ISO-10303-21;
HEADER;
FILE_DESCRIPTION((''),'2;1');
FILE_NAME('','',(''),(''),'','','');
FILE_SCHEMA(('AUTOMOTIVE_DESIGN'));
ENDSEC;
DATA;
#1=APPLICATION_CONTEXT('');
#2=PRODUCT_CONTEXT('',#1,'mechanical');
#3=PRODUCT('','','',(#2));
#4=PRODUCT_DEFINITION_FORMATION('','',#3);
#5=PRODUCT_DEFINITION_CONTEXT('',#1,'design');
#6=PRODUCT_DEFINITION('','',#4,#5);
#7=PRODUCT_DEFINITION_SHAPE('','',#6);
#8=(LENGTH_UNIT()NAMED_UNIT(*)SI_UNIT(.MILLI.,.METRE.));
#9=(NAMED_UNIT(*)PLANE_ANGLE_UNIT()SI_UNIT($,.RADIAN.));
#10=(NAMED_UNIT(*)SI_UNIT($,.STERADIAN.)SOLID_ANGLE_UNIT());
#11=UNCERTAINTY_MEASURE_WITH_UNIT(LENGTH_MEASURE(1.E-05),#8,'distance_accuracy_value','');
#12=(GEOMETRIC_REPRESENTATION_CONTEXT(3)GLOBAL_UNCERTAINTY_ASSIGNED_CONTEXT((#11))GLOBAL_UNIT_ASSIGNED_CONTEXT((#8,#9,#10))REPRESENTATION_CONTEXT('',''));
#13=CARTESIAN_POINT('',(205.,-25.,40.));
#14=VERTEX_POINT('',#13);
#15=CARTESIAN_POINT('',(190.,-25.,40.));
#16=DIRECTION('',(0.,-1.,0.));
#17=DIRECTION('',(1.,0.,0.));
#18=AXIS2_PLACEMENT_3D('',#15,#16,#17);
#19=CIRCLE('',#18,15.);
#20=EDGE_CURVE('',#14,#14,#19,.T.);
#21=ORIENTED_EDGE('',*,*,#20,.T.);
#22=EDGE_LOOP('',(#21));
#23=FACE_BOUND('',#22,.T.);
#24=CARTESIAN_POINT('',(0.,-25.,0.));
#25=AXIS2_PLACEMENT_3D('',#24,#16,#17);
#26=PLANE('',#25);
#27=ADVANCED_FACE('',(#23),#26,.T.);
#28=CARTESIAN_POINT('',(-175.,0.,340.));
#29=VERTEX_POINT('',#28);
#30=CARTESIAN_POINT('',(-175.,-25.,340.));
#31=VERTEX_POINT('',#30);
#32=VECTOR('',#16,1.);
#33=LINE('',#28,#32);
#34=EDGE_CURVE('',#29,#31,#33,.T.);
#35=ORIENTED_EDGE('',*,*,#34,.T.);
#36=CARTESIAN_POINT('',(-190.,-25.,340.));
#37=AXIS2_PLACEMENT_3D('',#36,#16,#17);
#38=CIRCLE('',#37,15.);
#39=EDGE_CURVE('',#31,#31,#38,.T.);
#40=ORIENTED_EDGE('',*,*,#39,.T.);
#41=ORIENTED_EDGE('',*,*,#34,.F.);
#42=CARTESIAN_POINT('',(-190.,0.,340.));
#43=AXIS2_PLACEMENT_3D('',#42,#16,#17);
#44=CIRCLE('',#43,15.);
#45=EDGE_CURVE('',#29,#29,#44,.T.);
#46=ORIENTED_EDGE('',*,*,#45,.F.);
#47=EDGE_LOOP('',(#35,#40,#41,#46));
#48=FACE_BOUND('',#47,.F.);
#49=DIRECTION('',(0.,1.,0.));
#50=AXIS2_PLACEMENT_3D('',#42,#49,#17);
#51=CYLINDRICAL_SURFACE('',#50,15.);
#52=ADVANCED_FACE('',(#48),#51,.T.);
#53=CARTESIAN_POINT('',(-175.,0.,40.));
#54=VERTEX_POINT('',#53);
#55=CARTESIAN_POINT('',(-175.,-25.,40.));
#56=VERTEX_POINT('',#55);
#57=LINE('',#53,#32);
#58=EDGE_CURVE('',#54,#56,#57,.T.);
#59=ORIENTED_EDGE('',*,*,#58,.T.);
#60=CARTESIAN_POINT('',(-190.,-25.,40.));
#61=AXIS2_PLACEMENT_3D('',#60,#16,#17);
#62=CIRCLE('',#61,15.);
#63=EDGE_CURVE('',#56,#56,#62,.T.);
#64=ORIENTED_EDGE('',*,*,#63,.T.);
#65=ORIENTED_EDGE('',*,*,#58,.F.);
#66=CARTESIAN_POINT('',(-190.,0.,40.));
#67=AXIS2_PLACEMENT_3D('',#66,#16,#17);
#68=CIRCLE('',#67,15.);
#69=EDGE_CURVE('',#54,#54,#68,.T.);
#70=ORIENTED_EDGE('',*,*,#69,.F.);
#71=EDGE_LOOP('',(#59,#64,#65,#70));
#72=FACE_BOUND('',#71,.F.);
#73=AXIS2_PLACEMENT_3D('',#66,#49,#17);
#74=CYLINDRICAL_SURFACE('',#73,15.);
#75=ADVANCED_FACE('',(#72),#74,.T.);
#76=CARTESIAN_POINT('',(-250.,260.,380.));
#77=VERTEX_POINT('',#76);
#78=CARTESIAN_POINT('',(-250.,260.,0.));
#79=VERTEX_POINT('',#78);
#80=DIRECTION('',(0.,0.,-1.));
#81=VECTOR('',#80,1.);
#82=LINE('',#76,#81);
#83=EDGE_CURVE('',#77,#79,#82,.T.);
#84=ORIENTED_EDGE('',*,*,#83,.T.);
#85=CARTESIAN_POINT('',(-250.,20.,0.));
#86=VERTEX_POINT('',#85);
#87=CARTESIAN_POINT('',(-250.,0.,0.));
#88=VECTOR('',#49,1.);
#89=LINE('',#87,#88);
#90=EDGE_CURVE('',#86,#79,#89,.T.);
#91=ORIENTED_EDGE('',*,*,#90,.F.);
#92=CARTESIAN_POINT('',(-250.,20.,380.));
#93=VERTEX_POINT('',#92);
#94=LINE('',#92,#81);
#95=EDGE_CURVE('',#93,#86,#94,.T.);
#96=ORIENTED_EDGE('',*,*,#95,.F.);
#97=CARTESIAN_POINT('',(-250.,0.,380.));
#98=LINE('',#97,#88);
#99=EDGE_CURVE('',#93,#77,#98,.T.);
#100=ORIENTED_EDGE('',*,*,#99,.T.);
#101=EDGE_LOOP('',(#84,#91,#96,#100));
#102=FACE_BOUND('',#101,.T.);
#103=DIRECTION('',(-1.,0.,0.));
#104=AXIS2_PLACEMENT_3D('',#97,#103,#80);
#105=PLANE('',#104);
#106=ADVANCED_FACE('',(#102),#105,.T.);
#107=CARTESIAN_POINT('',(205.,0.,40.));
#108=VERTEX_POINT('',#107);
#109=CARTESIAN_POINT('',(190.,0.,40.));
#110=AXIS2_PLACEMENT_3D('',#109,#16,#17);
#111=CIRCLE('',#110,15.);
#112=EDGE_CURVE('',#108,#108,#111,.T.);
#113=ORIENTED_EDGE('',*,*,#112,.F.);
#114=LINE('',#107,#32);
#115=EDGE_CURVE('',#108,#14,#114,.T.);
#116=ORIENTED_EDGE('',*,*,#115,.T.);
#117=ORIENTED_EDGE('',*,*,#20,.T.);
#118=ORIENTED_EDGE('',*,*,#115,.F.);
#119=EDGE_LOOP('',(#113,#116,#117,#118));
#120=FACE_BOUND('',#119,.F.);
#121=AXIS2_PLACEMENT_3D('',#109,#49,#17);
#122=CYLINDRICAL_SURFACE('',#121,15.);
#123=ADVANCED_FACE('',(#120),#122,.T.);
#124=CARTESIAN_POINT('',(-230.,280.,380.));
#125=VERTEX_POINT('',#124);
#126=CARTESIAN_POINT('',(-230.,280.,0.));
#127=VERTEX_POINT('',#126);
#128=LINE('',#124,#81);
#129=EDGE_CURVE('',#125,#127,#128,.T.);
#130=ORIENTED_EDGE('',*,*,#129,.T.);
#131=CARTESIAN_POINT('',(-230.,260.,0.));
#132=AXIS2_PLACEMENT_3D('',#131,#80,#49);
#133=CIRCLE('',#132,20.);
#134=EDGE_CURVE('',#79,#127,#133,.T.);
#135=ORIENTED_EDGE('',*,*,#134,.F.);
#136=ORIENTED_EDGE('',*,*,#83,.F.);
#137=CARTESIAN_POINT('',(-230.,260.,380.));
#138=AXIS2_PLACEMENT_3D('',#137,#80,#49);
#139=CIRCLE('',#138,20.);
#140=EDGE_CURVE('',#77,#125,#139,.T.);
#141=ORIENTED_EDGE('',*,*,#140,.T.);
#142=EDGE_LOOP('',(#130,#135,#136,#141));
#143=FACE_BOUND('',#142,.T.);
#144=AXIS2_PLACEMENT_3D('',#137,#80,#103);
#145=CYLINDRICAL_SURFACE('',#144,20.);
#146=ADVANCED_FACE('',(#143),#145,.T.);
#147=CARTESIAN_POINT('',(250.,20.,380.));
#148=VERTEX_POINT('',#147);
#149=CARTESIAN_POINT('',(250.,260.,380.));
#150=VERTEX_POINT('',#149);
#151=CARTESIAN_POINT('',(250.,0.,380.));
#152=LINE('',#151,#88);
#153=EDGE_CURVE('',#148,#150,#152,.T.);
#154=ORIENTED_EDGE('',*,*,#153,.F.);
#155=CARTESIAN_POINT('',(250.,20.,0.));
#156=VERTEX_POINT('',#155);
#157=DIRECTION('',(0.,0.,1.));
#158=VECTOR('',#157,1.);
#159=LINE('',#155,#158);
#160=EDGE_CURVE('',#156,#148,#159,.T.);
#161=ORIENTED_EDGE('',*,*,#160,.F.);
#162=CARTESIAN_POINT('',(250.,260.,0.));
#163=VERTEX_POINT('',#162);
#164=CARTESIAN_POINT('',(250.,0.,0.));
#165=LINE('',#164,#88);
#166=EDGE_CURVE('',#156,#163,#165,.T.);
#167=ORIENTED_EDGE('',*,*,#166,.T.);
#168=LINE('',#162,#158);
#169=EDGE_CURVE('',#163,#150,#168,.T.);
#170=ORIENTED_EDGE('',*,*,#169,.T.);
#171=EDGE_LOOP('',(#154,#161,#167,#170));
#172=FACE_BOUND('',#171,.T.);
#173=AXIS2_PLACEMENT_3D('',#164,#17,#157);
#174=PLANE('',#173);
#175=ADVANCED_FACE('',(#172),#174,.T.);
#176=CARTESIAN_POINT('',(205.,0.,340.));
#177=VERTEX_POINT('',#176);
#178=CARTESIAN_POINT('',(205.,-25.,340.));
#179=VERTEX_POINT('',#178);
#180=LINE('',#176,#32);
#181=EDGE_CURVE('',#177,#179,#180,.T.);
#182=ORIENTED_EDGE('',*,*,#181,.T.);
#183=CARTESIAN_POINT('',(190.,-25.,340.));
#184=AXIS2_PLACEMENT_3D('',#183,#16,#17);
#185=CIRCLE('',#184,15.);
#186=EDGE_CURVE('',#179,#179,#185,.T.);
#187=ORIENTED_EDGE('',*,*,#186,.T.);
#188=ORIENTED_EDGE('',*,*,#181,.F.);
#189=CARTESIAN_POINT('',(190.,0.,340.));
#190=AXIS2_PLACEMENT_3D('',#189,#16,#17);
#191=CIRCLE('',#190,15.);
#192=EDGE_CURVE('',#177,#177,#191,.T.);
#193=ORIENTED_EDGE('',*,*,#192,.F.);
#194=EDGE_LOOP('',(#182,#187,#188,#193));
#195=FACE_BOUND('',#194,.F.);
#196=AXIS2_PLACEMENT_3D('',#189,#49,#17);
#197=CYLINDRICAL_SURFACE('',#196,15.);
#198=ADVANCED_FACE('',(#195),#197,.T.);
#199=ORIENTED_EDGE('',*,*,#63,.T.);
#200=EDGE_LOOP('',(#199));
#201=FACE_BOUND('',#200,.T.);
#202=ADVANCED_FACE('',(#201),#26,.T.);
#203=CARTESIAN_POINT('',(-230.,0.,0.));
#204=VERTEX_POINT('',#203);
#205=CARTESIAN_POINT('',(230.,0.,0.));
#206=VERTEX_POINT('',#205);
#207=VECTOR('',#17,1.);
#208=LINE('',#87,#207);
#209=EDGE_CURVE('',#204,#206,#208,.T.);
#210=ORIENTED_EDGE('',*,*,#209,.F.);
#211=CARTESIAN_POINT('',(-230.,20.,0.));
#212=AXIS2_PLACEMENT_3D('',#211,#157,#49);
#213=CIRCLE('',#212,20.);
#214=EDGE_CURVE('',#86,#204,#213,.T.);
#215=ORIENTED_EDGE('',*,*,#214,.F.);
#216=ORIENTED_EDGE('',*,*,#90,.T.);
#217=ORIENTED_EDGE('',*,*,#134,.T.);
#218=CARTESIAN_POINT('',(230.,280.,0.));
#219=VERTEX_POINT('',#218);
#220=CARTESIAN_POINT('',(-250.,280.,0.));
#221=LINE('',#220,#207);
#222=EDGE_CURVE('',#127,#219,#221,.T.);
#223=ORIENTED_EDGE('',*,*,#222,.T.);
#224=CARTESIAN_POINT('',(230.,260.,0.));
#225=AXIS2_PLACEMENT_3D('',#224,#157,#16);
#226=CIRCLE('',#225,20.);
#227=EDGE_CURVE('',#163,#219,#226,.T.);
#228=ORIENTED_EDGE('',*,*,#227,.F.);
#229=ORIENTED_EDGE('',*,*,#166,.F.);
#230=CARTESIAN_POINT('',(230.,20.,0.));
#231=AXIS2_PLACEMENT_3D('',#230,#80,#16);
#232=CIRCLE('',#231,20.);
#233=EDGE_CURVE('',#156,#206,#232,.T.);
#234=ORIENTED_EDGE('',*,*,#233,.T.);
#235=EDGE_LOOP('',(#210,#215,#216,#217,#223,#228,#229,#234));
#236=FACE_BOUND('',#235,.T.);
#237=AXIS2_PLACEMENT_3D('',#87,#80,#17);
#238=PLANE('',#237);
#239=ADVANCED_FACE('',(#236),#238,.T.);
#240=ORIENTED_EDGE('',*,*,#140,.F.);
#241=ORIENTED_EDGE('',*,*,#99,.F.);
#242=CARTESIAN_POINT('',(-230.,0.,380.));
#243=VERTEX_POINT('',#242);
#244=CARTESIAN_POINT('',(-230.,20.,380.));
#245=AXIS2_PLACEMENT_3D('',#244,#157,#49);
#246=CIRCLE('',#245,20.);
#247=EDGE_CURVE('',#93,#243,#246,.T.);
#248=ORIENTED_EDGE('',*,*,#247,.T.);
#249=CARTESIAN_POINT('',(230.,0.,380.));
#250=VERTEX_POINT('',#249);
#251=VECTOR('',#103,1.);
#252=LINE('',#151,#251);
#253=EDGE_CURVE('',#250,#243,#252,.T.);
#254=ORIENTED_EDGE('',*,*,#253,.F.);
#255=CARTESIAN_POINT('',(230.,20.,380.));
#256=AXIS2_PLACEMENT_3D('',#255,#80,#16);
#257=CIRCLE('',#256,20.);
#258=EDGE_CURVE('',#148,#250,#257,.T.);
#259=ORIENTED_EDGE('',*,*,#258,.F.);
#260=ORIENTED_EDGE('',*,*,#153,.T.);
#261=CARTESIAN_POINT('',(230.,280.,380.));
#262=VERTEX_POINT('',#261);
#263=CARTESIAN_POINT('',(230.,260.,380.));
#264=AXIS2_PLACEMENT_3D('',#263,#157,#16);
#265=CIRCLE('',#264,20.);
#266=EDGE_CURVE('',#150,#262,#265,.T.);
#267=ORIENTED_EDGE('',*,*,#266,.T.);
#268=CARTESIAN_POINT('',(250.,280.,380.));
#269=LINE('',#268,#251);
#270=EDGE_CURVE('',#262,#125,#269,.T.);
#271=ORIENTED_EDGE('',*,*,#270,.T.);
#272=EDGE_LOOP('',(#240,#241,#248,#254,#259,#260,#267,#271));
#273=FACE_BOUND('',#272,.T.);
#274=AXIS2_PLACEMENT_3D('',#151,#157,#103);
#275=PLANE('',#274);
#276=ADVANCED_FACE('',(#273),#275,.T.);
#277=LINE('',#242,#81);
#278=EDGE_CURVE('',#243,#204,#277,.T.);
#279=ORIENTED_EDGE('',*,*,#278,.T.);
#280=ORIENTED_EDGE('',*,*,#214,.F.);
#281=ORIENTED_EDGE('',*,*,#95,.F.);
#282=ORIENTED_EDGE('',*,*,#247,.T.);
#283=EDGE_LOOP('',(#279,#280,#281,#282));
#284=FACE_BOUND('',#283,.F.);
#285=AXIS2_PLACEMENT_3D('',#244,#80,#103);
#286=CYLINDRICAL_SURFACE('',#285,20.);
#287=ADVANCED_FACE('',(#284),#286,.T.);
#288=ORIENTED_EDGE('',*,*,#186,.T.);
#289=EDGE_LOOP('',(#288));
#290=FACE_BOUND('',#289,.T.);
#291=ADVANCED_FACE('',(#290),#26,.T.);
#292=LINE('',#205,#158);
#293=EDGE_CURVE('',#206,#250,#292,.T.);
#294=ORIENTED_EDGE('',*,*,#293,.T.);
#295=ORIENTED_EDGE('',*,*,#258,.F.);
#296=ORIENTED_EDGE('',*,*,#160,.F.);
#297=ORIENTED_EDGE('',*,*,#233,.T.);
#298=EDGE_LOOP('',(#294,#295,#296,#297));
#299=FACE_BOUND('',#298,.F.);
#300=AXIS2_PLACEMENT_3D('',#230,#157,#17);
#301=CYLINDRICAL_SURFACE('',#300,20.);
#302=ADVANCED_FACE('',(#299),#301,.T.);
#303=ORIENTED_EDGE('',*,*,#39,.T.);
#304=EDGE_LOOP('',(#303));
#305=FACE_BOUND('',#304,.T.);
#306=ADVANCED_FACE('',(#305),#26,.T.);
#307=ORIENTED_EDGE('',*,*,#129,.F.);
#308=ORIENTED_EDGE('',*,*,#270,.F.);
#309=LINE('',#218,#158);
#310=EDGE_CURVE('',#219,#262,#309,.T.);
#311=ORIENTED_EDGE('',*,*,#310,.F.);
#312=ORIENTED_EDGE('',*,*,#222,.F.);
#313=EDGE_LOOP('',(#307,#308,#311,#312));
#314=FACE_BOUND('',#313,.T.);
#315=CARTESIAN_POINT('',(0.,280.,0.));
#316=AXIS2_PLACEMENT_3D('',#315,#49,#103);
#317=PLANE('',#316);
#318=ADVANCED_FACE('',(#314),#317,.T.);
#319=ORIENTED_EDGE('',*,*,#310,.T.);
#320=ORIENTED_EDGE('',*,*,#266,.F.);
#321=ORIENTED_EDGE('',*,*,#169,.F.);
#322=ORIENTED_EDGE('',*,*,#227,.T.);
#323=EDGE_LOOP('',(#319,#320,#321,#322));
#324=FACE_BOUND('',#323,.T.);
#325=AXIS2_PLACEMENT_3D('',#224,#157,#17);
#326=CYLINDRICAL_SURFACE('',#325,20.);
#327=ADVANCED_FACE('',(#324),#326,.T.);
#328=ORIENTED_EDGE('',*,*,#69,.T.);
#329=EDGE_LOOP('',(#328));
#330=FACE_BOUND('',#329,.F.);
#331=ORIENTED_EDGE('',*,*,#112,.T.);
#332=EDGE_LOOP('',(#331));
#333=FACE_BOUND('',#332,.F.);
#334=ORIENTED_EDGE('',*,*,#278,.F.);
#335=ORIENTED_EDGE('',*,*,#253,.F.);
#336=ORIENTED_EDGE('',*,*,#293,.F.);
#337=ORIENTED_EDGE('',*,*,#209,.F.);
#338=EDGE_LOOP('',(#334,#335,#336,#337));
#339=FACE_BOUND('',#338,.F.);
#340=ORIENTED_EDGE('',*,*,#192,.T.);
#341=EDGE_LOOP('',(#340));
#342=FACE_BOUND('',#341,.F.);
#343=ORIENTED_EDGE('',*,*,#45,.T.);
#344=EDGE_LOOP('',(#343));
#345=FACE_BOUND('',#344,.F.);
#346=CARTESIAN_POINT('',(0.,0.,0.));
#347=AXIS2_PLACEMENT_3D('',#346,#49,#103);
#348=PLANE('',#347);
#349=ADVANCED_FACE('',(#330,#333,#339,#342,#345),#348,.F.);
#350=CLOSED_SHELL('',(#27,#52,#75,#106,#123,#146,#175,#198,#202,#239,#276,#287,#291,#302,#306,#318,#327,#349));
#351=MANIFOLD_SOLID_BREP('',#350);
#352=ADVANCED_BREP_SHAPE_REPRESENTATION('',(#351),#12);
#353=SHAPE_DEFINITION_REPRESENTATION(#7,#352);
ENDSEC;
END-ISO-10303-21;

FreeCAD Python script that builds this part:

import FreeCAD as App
import Part
import Sketcher
Q = App.Units.Quantity


def edges_at(feature, points):
    """Names of the edges that pass closest to the given points."""
    edges = feature.Shape.Edges
    near = lambda p: min(range(len(edges)), key=lambda i: edges[i].distToShape(Part.Vertex(*p))[0])
    return sorted({f"Edge{near(p) + 1}" for p in points})


def add_polygon(sketch, points):
    """Adds a closed chain of lines whose ends are joined by coincident constraints."""
    first, n = sketch.GeometryCount, len(points)
    for a, b in zip(points, points[1:] + points[:1]):
        sketch.addGeometry(Part.LineSegment(App.Vector(*a, 0), App.Vector(*b, 0)), False)
    for i in range(n):
        sketch.addConstraint(Sketcher.Constraint("Coincident", first + i, 2, first + (i + 1) % n, 1))

doc = App.newDocument("Part")
body = doc.addObject("PartDesign::Body", "Body")

# Sketch on XZ plane
sketch1 = body.newObject("Sketcher::SketchObject", "Sketch")
sketch1.AttachmentSupport = (doc.getObject("XZ_Plane"), [""])
sketch1.MapMode = "FlatFace"
add_polygon(sketch1, [(250, 0), (-250, 0), (-250, 380), (250, 380)])  # lines 0-3
sketch1.addConstraint(Sketcher.Constraint("Horizontal", 0))
sketch1.addConstraint(Sketcher.Constraint("Vertical", 1))
sketch1.addConstraint(Sketcher.Constraint("Horizontal", 2))
sketch1.addConstraint(Sketcher.Constraint("Vertical", 3))
sketch1.addConstraint(Sketcher.Constraint("Symmetric", 0, 2, 3, 2, -1, 1))
sketch1.addConstraint(Sketcher.Constraint("DistanceX", 0, 2, 0, 1, Q("500 mm")))
sketch1.addConstraint(Sketcher.Constraint("DistanceY", 1, 1, 1, 2, Q("380 mm")))
pad1 = body.newObject("PartDesign::Pad", "Pad")
pad1.Profile = sketch1
pad1.Length = 280
pad1.Reversed = True
doc.recompute()

fillet = body.newObject("PartDesign::Fillet", "Fillet")
fillet.Base = (pad1, edges_at(pad1, [
    (-250, 280, 190),
    (-250, 0, 190),
    (250, 0, 190),
    (250, 280, 190),
]))
fillet.Radius = 20

# Sketch on XZ plane
sketch2 = body.newObject("Sketcher::SketchObject", "Sketch001")
sketch2.AttachmentSupport = (doc.getObject("XZ_Plane"), [""])
sketch2.MapMode = "FlatFace"
sketch2.addGeometry(Part.Circle(App.Vector(-190, 340, 0), App.Vector(0, 0, 1), 15), False)
sketch2.addGeometry(Part.Circle(App.Vector(-190, 40, 0), App.Vector(0, 0, 1), 15), False)
sketch2.addGeometry(Part.Circle(App.Vector(190, 40, 0), App.Vector(0, 0, 1), 15), False)
sketch2.addGeometry(Part.Circle(App.Vector(190, 340, 0), App.Vector(0, 0, 1), 15), False)
sketch2.addConstraint(Sketcher.Constraint("Equal", 0, 1))
sketch2.addConstraint(Sketcher.Constraint("Equal", 1, 2))
sketch2.addConstraint(Sketcher.Constraint("Equal", 2, 3))
sketch2.addConstraint(Sketcher.Constraint("Symmetric", 1, 3, 2, 3, -2))
sketch2.addConstraint(Sketcher.Constraint("Symmetric", 0, 3, 3, 3, -2))
sketch2.addConstraint(Sketcher.Constraint("Vertical", 0, 3, 1, 3))
sketch2.addConstraint(Sketcher.Constraint("Diameter", 0, Q("30 mm")))
sketch2.addConstraint(Sketcher.Constraint("DistanceY", -1, 1, 1, 3, Q("40 mm")))
sketch2.addConstraint(Sketcher.Constraint("DistanceX", 0, 3, -1, 1, Q("190 mm")))
sketch2.addConstraint(Sketcher.Constraint("DistanceY", -1, 1, 0, 3, Q("340 mm")))
pad2 = body.newObject("PartDesign::Pad", "Pad001")
pad2.Profile = sketch2
pad2.Length = 25

doc.recompute()
